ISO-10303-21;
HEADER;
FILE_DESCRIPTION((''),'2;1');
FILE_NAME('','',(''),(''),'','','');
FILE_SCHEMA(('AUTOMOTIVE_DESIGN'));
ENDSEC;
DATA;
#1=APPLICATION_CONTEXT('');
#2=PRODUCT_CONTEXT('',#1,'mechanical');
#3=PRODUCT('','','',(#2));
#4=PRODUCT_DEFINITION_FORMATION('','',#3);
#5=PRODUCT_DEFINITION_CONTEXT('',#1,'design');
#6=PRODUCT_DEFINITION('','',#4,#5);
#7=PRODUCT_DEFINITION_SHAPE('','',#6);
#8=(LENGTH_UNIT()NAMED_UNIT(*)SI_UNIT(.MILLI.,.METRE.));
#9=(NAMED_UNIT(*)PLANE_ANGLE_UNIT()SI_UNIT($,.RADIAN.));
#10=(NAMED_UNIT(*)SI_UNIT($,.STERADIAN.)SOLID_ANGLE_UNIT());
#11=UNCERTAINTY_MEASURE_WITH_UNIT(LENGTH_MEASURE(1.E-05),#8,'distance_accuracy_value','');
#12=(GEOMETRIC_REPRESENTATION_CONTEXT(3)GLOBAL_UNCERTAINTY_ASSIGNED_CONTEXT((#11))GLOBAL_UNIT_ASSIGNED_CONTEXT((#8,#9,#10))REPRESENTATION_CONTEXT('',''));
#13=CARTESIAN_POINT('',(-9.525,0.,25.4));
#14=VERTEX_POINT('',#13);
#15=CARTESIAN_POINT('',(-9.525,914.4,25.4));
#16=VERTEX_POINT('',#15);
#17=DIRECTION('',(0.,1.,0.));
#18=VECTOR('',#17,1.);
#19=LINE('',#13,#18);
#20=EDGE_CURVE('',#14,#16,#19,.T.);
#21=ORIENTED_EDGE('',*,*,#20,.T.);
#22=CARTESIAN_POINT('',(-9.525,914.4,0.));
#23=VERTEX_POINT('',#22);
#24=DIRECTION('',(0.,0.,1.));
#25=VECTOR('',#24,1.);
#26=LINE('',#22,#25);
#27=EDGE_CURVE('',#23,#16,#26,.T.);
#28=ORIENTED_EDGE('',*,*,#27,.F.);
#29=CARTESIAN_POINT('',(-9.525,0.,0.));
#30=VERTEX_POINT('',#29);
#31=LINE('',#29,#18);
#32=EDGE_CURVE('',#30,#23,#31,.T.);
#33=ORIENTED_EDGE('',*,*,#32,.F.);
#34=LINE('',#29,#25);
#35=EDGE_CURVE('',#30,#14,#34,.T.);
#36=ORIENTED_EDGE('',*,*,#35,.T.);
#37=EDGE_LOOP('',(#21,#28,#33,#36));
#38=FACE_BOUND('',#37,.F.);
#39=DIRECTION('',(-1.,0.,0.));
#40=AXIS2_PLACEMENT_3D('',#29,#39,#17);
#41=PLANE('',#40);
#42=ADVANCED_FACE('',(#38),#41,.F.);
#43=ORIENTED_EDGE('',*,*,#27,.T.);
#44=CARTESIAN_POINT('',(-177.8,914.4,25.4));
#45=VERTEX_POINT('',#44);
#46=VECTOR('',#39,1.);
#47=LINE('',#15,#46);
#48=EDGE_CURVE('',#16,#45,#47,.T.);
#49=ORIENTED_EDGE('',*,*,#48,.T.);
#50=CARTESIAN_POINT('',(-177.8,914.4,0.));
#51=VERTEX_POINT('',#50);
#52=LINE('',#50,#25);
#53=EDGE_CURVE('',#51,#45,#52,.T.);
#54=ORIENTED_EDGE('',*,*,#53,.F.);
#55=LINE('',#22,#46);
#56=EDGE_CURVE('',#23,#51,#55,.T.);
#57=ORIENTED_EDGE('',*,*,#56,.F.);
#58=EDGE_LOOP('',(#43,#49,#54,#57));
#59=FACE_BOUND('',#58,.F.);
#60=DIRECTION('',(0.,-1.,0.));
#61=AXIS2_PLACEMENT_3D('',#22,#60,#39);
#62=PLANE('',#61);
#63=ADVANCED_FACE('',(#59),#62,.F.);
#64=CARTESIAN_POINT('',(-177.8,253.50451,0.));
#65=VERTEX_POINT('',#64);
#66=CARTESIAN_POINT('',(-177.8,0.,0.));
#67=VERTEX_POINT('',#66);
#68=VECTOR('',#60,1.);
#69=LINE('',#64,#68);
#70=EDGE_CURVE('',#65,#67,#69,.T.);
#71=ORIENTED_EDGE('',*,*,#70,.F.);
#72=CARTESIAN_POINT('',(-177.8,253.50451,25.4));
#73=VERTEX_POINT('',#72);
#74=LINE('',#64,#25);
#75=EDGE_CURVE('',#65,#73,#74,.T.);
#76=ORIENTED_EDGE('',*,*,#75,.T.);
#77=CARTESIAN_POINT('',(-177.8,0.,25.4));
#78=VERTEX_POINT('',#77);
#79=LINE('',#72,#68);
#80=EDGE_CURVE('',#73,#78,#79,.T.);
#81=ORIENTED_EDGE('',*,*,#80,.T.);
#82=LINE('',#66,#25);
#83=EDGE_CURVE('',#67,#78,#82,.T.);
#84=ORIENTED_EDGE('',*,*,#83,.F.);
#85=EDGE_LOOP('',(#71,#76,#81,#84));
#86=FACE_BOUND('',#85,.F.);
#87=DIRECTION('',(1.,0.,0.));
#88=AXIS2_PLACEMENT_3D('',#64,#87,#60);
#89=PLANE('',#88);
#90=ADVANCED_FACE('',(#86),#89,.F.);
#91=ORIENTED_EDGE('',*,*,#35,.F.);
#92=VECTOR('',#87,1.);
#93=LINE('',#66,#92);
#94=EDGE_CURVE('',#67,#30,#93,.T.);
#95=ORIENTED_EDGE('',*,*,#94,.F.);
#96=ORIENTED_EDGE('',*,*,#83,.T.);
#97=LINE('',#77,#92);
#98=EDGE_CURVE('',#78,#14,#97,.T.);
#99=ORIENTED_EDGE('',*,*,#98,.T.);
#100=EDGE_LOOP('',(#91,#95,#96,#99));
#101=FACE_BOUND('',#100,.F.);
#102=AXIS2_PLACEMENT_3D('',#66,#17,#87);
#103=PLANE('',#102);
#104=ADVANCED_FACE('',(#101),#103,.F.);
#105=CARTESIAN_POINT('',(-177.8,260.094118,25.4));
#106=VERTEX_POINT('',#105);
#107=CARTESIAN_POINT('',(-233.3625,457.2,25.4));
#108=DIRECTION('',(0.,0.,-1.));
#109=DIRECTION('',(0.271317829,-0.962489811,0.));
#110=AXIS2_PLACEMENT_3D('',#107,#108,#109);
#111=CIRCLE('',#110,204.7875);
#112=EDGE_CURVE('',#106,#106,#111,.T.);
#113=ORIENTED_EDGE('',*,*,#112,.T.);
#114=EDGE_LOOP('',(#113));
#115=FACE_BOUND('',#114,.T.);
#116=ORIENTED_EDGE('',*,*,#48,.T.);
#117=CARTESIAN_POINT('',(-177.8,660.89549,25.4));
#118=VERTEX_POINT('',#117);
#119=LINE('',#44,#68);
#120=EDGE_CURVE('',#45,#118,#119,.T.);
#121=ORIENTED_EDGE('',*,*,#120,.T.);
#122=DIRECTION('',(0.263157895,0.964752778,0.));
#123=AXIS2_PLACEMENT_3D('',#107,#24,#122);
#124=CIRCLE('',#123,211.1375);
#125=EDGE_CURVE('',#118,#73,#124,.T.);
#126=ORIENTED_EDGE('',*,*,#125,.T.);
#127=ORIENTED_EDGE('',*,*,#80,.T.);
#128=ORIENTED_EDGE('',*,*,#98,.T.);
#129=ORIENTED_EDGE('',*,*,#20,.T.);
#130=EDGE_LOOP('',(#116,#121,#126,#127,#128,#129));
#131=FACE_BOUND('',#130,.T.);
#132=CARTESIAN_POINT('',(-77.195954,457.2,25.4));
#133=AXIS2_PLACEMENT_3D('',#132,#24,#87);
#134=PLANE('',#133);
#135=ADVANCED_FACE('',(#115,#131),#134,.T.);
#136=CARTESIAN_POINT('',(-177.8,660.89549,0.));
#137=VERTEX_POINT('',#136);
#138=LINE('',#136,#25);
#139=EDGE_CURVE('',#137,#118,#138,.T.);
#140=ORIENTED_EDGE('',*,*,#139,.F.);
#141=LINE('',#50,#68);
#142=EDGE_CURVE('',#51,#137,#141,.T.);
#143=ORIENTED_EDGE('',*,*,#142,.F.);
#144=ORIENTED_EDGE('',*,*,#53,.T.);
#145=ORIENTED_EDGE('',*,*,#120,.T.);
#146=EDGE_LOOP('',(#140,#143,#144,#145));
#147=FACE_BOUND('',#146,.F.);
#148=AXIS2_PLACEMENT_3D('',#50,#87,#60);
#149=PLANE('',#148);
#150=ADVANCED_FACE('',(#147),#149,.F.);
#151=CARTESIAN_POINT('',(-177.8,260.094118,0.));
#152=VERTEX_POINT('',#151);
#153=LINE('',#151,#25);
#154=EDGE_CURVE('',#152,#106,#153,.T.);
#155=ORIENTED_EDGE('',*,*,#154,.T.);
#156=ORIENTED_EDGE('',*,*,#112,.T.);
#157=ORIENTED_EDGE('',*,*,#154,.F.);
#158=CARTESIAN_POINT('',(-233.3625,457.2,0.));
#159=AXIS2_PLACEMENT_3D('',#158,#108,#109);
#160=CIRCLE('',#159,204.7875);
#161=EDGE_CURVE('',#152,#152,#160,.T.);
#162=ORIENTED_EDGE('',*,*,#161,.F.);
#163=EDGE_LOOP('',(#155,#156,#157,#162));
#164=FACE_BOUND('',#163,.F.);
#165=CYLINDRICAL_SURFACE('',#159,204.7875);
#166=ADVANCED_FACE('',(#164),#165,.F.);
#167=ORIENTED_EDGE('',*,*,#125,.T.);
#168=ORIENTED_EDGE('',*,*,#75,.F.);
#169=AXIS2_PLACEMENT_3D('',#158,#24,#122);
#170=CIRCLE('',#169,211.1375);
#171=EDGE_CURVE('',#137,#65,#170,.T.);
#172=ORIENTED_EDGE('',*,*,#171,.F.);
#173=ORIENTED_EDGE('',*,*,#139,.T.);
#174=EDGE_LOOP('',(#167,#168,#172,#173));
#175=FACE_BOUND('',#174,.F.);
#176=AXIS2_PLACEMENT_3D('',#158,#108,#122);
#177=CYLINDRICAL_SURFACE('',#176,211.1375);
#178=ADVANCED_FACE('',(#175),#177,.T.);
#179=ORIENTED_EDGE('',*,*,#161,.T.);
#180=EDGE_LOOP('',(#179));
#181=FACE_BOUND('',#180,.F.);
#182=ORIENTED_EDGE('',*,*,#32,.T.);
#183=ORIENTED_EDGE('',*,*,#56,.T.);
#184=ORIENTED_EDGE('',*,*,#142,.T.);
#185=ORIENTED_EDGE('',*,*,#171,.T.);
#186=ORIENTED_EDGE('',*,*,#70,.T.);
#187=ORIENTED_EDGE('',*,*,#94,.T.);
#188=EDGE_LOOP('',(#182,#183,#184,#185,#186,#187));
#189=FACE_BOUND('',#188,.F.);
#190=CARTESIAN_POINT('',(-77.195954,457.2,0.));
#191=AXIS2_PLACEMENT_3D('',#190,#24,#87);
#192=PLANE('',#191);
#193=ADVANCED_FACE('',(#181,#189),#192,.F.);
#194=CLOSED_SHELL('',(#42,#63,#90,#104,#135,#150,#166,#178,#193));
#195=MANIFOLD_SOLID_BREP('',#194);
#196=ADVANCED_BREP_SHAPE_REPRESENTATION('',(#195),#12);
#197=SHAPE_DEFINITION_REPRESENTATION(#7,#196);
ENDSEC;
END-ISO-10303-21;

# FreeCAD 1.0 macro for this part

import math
import FreeCAD as App
import Part
import Sketcher
Q = App.Units.Quantity

doc = App.newDocument("Part")
body = doc.addObject("PartDesign::Body", "Body")

# Sketch on XY plane
sketch1 = body.newObject("Sketcher::SketchObject", "Sketch")
sketch1.AttachmentSupport = (doc.getObject("XY_Plane"), [""])
sketch1.MapMode = "FlatFace"
sketch1.addGeometry([
    Part.LineSegment(App.Vector(-178, 0, 0), App.Vector(-10, 0, 0)),  # 0
    Part.LineSegment(App.Vector(-10, 0, 0), App.Vector(-10, 914, 0)),  # 1
    Part.LineSegment(App.Vector(-10, 914, 0), App.Vector(-178, 914, 0)),  # 2
    Part.LineSegment(App.Vector(-178, 914, 0), App.Vector(-178, 661, 0)),  # 3
    Part.ArcOfCircle(Part.Circle(App.Vector(-233, 457, 0), App.Vector(0, 0, 1), 211), math.radians(75), math.radians(285)),  # 4
    Part.LineSegment(App.Vector(-178, 254, 0), App.Vector(-178, 0, 0)),  # 5
    Part.Circle(App.Vector(-233, 457, 0), App.Vector(0, 0, 1), 205),  # 6
], False)
sketch1.addConstraint([
    Sketcher.Constraint("Coincident", 0, 2, 1, 1),
    Sketcher.Constraint("Coincident", 1, 2, 2, 1),
    Sketcher.Constraint("Coincident", 2, 2, 3, 1),
    Sketcher.Constraint("Coincident", 3, 2, 4, 1),
    Sketcher.Constraint("Coincident", 4, 2, 5, 1),
    Sketcher.Constraint("Coincident", 5, 2, 0, 1),
    Sketcher.Constraint("Horizontal", 0),
    Sketcher.Constraint("Vertical", 1),
    Sketcher.Constraint("Horizontal", 2),
    Sketcher.Constraint("Vertical", 3),
    Sketcher.Constraint("Vertical", 5),
    Sketcher.Constraint("Coincident", 6, 3, 4, 3),
    Sketcher.Constraint("PointOnObject", 0, 2, -1),
    Sketcher.Constraint("Vertical", 3, 2, 4, 2),
    Sketcher.Constraint("Equal", 3, 5),
    Sketcher.Constraint("DistanceY", 1, 1, 1, 2, Q("36 in")),
    Sketcher.Constraint("Diameter", 6, Q("16.125 in")),
    Sketcher.Constraint("DistanceX", 2, 2, -1, 1, Q("7 in")),
    Sketcher.Constraint("Radius", 4, Q("8.3125 in")),
    Sketcher.Constraint("DistanceX", 0, 1, 0, 2, Q("6.625 in")),
    Sketcher.Constraint("DistanceX", 4, 3, -1, 1, Q("9.1875 in")),
])
pad1 = body.newObject("PartDesign::Pad", "Pad")
pad1.Profile = sketch1
pad1.Length = Q("1 in")

doc.recompute()
